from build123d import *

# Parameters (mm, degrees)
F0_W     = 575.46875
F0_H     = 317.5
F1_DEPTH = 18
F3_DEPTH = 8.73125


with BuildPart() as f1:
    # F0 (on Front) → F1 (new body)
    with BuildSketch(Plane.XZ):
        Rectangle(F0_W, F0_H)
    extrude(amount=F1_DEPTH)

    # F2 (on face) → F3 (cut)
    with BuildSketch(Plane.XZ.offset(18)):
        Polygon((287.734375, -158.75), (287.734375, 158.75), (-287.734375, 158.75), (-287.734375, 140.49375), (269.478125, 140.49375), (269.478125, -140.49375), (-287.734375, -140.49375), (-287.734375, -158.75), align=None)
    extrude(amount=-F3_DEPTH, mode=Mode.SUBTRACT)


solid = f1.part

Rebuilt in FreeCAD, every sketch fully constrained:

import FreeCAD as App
import Part
import Sketcher
from FreeCAD import Vector
Q = App.Units.Quantity

doc = App.newDocument("Part")
body = doc.addObject("PartDesign::Body", "Body")

sketch1 = body.newObject("Sketcher::SketchObject", "Sketch")
sketch1.AttachmentSupport = (doc.getObject("XZ_Plane"), [""])
sketch1.MapMode = "FlatFace"
sketch1.addGeometry([
    Part.LineSegment(Vector(-288, 159, 0), Vector(-288, -159, 0)),
    Part.LineSegment(Vector(-288, -159, 0), Vector(288, -159, 0)),
    Part.LineSegment(Vector(288, -159, 0), Vector(288, 159, 0)),
    Part.LineSegment(Vector(288, 159, 0), Vector(-288, 159, 0)),
], False)
sketch1.addConstraint([
    Sketcher.Constraint("Coincident", 0, 2, 1, 1),
    Sketcher.Constraint("Coincident", 1, 2, 2, 1),
    Sketcher.Constraint("Coincident", 2, 2, 3, 1),
    Sketcher.Constraint("Coincident", 3, 2, 0, 1),
    Sketcher.Constraint("Vertical", 0),
    Sketcher.Constraint("Horizontal", 1),
    Sketcher.Constraint("Vertical", 2),
    Sketcher.Constraint("Horizontal", 3),
    Sketcher.Constraint("Symmetric", 0, 2, 2, 2, -1, 1),
    Sketcher.Constraint("DistanceY", 0, 2, 0, 1, Q("12.5 in")),
    Sketcher.Constraint("DistanceX", 1, 1, 1, 2, Q("22.65625 in")),
])
pad1 = body.newObject("PartDesign::Pad", "Pad")
pad1.Profile = sketch1
pad1.Length = 18

sketch2 = body.newObject("Sketcher::SketchObject", "Sketch001")
sketch2.AttachmentSupport = (doc.getObject("XZ_Plane"), [""])
sketch2.MapMode = "FlatFace"
sketch2.AttachmentOffset = App.Placement(Vector(0, 0, 18), App.Rotation())
sketch2.addGeometry([
    Part.LineSegment(Vector(288, -159, 0), Vector(288, 159, 0)),
    Part.LineSegment(Vector(288, 159, 0), Vector(-288, 159, 0)),
    Part.LineSegment(Vector(-288, 159, 0), Vector(-288, 140, 0)),
    Part.LineSegment(Vector(-288, 140, 0), Vector(269, 140, 0)),
    Part.LineSegment(Vector(269, 140, 0), Vector(269, -140, 0)),
    Part.LineSegment(Vector(269, -140, 0), Vector(-288, -140, 0)),
    Part.LineSegment(Vector(-288, -140, 0), Vector(-288, -159, 0)),
    Part.LineSegment(Vector(-288, -159, 0), Vector(288, -159, 0)),
], False)
sketch2.addConstraint([
    Sketcher.Constraint("Coincident", 0, 2, 1, 1),
    Sketcher.Constraint("Coincident", 1, 2, 2, 1),
    Sketcher.Constraint("Coincident", 2, 2, 3, 1),
    Sketcher.Constraint("Coincident", 3, 2, 4, 1),
    Sketcher.Constraint("Coincident", 4, 2, 5, 1),
    Sketcher.Constraint("Coincident", 5, 2, 6, 1),
    Sketcher.Constraint("Coincident", 6, 2, 7, 1),
    Sketcher.Constraint("Coincident", 7, 2, 0, 1),
    Sketcher.Constraint("Vertical", 0),
    Sketcher.Constraint("Horizontal", 1),
    Sketcher.Constraint("Vertical", 2),
    Sketcher.Constraint("Horizontal", 3),
    Sketcher.Constraint("Vertical", 4),
    Sketcher.Constraint("Horizontal", 5),
    Sketcher.Constraint("Vertical", 6),
    Sketcher.Constraint("Horizontal", 7),
    Sketcher.Constraint("Symmetric", 0, 2, 6, 2, -1, 1),
    Sketcher.Constraint("Symmetric", 2, 2, 5, 2, -1),
    Sketcher.Constraint("DistanceY", 0, 1, 0, 2, Q("12.5 in")),
    Sketcher.Constraint("DistanceX", 1, 2, 1, 1, Q("22.65625 in")),
    Sketcher.Constraint("DistanceX", 3, 1, 3, 2, Q("21.9375 in")),
    Sketcher.Constraint("DistanceY", 2, 2, 2, 1, Q("0.71875 in")),
])
pocket1 = body.newObject("PartDesign::Pocket", "Pocket")
pocket1.Profile = sketch2
pocket1.Length = Q("0.34375 in")

doc.recompute()
